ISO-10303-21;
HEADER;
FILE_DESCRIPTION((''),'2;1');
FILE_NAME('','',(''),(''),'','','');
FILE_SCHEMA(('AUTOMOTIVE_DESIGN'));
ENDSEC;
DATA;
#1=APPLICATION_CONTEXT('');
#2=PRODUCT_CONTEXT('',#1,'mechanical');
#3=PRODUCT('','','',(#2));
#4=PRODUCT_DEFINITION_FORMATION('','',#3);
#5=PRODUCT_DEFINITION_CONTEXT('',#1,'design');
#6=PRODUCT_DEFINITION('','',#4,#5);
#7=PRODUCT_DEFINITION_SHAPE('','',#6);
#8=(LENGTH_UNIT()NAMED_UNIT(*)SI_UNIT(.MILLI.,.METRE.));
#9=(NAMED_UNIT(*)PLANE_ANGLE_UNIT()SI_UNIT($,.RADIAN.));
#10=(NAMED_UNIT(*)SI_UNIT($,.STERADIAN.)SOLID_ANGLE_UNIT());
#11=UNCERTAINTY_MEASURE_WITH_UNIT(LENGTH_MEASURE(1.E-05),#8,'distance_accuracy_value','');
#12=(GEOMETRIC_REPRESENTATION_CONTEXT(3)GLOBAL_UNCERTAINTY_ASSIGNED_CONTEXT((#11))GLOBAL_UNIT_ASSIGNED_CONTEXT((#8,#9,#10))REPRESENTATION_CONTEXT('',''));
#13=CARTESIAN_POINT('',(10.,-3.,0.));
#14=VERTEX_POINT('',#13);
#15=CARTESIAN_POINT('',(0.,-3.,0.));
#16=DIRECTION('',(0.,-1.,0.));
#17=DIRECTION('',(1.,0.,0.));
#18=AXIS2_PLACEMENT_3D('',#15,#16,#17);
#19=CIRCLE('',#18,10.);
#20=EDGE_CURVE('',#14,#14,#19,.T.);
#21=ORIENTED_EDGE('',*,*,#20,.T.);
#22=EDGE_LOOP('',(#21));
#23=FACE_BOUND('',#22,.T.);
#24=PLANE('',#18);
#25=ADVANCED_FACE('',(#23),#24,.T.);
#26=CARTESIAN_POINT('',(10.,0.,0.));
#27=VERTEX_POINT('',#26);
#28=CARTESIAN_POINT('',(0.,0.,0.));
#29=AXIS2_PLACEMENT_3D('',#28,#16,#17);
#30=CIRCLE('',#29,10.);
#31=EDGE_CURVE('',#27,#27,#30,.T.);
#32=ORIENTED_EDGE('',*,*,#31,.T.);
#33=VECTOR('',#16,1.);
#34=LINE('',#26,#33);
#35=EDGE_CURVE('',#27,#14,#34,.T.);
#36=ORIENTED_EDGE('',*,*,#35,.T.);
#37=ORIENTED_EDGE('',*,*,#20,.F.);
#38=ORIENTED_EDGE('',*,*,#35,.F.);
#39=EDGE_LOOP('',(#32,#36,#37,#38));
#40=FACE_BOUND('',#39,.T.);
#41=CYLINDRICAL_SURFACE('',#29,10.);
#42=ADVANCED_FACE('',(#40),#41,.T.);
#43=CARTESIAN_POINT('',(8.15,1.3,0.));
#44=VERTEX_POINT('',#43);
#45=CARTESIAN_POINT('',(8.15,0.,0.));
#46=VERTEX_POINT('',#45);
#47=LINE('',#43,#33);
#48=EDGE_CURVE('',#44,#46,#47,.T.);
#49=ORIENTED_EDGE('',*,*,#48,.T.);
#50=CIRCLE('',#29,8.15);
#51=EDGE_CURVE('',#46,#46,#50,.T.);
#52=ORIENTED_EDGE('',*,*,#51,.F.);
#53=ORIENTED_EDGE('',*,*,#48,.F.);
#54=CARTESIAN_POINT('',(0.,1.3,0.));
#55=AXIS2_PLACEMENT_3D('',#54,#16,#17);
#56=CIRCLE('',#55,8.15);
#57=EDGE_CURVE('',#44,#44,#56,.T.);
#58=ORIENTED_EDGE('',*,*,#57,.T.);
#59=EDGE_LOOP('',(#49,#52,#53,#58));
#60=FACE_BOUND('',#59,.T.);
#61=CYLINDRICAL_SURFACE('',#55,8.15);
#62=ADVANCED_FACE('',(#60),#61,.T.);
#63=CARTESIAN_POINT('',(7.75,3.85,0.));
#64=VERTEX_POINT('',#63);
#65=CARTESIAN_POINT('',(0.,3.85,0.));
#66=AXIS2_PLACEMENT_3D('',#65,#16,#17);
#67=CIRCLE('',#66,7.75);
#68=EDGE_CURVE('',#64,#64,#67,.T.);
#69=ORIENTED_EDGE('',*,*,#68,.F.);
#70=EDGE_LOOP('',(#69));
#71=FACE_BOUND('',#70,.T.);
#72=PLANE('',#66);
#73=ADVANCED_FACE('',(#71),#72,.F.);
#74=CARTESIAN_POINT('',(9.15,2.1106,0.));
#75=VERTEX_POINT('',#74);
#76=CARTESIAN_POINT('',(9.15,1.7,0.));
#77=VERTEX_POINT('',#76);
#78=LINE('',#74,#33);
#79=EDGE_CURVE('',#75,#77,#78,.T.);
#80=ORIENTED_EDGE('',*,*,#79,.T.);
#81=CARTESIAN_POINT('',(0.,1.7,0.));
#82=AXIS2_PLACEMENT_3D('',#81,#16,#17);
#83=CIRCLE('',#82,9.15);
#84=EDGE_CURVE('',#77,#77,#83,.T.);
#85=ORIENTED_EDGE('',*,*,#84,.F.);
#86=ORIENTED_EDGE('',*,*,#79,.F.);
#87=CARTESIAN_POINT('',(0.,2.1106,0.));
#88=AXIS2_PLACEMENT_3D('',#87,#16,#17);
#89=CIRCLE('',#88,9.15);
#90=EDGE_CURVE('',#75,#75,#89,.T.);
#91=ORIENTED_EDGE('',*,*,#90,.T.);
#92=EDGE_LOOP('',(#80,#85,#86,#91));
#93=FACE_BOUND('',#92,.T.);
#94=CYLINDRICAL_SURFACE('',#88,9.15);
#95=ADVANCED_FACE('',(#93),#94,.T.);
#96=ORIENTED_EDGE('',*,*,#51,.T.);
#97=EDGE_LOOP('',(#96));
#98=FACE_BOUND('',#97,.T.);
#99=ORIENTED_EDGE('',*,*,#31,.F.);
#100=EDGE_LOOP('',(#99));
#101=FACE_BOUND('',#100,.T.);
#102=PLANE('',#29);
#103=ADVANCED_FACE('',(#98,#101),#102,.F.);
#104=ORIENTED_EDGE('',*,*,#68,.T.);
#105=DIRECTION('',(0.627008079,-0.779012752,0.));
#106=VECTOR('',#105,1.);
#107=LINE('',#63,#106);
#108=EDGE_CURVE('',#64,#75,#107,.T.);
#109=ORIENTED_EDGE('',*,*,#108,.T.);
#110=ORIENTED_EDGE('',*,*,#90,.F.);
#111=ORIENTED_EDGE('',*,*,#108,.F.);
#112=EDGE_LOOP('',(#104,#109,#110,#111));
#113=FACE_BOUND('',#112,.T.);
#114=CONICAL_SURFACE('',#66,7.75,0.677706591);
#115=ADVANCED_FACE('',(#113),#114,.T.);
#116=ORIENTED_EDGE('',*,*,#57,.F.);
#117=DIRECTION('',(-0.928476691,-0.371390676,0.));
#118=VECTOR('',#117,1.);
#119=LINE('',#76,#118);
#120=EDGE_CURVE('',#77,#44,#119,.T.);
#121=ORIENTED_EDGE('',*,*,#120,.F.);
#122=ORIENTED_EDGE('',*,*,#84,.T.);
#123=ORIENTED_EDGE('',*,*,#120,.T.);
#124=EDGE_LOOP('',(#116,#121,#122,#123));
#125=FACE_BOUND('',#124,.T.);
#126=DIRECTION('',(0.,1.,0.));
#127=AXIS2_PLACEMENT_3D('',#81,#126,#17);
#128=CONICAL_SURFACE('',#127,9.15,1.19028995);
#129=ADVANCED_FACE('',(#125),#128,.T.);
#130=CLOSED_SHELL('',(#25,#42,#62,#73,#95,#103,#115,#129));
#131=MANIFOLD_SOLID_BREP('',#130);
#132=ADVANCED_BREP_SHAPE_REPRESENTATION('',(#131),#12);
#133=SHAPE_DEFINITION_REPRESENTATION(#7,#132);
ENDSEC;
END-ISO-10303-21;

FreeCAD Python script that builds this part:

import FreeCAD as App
import Part
import Sketcher
Q = App.Units.Quantity


def add_polygon(sketch, points):
    """Adds a closed chain of lines whose ends are joined by coincident constraints."""
    first, n = sketch.GeometryCount, len(points)
    for a, b in zip(points, points[1:] + points[:1]):
        sketch.addGeometry(Part.LineSegment(App.Vector(*a, 0), App.Vector(*b, 0)), False)
    for i in range(n):
        sketch.addConstraint(Sketcher.Constraint("Coincident", first + i, 2, first + (i + 1) % n, 1))

doc = App.newDocument("Part")
body = doc.addObject("PartDesign::Body", "Body")

# Sketch on XY plane
sketch1 = body.newObject("Sketcher::SketchObject", "Sketch")
sketch1.AttachmentSupport = (doc.getObject("XY_Plane"), [""])
sketch1.MapMode = "FlatFace"
add_polygon(sketch1, [(0, 3.85), (0, -3), (10, -3), (10, 0), (8.15, 0), (8.15, 1.3), (9.15, 1.7), (9.15, 2.11), (7.75, 3.85)])  # lines 0-8
sketch1.addConstraint([
    Sketcher.Constraint("Vertical", 0),
    Sketcher.Constraint("Horizontal", 1),
    Sketcher.Constraint("Vertical", 2),
    Sketcher.Constraint("Horizontal", 3),
    Sketcher.Constraint("Vertical", 4),
    Sketcher.Constraint("Vertical", 6),
    Sketcher.Constraint("Horizontal", 8),
    Sketcher.Constraint("PointOnObject", 0, 2, -2),
    Sketcher.Constraint("PointOnObject", 2, 2, -1),
    Sketcher.Constraint("DistanceX", 1, 1, 1, 2, Q("10 mm")),
    Sketcher.Constraint("DistanceY", 2, 1, 2, 2, Q("3 mm")),
    Sketcher.Constraint("DistanceY", 4, 1, 4, 2, Q("1.3 mm")),
    Sketcher.Constraint("DistanceX", 4, 2, 5, 2, Q("1 mm")),
    Sketcher.Constraint("DistanceX", 3, 2, 3, 1, Q("1.85 mm")),
    Sketcher.Constraint("DistanceX", 8, 2, 8, 1, Q("7.75 mm")),
    Sketcher.Constraint("DistanceY", 0, 2, 0, 1, Q("6.85 mm")),
    Sketcher.Constraint("DistanceY", -1, 1, 5, 2, Q("1.7 mm")),
    Sketcher.Constraint("Angle", 7, Q("128.8297 deg")),
])
revolution = body.newObject("PartDesign::Revolution", "Revolution")
revolution.Profile = sketch1
revolution.ReferenceAxis = (sketch1, ["V_Axis"])
revolution.Angle = 360

doc.recompute()
